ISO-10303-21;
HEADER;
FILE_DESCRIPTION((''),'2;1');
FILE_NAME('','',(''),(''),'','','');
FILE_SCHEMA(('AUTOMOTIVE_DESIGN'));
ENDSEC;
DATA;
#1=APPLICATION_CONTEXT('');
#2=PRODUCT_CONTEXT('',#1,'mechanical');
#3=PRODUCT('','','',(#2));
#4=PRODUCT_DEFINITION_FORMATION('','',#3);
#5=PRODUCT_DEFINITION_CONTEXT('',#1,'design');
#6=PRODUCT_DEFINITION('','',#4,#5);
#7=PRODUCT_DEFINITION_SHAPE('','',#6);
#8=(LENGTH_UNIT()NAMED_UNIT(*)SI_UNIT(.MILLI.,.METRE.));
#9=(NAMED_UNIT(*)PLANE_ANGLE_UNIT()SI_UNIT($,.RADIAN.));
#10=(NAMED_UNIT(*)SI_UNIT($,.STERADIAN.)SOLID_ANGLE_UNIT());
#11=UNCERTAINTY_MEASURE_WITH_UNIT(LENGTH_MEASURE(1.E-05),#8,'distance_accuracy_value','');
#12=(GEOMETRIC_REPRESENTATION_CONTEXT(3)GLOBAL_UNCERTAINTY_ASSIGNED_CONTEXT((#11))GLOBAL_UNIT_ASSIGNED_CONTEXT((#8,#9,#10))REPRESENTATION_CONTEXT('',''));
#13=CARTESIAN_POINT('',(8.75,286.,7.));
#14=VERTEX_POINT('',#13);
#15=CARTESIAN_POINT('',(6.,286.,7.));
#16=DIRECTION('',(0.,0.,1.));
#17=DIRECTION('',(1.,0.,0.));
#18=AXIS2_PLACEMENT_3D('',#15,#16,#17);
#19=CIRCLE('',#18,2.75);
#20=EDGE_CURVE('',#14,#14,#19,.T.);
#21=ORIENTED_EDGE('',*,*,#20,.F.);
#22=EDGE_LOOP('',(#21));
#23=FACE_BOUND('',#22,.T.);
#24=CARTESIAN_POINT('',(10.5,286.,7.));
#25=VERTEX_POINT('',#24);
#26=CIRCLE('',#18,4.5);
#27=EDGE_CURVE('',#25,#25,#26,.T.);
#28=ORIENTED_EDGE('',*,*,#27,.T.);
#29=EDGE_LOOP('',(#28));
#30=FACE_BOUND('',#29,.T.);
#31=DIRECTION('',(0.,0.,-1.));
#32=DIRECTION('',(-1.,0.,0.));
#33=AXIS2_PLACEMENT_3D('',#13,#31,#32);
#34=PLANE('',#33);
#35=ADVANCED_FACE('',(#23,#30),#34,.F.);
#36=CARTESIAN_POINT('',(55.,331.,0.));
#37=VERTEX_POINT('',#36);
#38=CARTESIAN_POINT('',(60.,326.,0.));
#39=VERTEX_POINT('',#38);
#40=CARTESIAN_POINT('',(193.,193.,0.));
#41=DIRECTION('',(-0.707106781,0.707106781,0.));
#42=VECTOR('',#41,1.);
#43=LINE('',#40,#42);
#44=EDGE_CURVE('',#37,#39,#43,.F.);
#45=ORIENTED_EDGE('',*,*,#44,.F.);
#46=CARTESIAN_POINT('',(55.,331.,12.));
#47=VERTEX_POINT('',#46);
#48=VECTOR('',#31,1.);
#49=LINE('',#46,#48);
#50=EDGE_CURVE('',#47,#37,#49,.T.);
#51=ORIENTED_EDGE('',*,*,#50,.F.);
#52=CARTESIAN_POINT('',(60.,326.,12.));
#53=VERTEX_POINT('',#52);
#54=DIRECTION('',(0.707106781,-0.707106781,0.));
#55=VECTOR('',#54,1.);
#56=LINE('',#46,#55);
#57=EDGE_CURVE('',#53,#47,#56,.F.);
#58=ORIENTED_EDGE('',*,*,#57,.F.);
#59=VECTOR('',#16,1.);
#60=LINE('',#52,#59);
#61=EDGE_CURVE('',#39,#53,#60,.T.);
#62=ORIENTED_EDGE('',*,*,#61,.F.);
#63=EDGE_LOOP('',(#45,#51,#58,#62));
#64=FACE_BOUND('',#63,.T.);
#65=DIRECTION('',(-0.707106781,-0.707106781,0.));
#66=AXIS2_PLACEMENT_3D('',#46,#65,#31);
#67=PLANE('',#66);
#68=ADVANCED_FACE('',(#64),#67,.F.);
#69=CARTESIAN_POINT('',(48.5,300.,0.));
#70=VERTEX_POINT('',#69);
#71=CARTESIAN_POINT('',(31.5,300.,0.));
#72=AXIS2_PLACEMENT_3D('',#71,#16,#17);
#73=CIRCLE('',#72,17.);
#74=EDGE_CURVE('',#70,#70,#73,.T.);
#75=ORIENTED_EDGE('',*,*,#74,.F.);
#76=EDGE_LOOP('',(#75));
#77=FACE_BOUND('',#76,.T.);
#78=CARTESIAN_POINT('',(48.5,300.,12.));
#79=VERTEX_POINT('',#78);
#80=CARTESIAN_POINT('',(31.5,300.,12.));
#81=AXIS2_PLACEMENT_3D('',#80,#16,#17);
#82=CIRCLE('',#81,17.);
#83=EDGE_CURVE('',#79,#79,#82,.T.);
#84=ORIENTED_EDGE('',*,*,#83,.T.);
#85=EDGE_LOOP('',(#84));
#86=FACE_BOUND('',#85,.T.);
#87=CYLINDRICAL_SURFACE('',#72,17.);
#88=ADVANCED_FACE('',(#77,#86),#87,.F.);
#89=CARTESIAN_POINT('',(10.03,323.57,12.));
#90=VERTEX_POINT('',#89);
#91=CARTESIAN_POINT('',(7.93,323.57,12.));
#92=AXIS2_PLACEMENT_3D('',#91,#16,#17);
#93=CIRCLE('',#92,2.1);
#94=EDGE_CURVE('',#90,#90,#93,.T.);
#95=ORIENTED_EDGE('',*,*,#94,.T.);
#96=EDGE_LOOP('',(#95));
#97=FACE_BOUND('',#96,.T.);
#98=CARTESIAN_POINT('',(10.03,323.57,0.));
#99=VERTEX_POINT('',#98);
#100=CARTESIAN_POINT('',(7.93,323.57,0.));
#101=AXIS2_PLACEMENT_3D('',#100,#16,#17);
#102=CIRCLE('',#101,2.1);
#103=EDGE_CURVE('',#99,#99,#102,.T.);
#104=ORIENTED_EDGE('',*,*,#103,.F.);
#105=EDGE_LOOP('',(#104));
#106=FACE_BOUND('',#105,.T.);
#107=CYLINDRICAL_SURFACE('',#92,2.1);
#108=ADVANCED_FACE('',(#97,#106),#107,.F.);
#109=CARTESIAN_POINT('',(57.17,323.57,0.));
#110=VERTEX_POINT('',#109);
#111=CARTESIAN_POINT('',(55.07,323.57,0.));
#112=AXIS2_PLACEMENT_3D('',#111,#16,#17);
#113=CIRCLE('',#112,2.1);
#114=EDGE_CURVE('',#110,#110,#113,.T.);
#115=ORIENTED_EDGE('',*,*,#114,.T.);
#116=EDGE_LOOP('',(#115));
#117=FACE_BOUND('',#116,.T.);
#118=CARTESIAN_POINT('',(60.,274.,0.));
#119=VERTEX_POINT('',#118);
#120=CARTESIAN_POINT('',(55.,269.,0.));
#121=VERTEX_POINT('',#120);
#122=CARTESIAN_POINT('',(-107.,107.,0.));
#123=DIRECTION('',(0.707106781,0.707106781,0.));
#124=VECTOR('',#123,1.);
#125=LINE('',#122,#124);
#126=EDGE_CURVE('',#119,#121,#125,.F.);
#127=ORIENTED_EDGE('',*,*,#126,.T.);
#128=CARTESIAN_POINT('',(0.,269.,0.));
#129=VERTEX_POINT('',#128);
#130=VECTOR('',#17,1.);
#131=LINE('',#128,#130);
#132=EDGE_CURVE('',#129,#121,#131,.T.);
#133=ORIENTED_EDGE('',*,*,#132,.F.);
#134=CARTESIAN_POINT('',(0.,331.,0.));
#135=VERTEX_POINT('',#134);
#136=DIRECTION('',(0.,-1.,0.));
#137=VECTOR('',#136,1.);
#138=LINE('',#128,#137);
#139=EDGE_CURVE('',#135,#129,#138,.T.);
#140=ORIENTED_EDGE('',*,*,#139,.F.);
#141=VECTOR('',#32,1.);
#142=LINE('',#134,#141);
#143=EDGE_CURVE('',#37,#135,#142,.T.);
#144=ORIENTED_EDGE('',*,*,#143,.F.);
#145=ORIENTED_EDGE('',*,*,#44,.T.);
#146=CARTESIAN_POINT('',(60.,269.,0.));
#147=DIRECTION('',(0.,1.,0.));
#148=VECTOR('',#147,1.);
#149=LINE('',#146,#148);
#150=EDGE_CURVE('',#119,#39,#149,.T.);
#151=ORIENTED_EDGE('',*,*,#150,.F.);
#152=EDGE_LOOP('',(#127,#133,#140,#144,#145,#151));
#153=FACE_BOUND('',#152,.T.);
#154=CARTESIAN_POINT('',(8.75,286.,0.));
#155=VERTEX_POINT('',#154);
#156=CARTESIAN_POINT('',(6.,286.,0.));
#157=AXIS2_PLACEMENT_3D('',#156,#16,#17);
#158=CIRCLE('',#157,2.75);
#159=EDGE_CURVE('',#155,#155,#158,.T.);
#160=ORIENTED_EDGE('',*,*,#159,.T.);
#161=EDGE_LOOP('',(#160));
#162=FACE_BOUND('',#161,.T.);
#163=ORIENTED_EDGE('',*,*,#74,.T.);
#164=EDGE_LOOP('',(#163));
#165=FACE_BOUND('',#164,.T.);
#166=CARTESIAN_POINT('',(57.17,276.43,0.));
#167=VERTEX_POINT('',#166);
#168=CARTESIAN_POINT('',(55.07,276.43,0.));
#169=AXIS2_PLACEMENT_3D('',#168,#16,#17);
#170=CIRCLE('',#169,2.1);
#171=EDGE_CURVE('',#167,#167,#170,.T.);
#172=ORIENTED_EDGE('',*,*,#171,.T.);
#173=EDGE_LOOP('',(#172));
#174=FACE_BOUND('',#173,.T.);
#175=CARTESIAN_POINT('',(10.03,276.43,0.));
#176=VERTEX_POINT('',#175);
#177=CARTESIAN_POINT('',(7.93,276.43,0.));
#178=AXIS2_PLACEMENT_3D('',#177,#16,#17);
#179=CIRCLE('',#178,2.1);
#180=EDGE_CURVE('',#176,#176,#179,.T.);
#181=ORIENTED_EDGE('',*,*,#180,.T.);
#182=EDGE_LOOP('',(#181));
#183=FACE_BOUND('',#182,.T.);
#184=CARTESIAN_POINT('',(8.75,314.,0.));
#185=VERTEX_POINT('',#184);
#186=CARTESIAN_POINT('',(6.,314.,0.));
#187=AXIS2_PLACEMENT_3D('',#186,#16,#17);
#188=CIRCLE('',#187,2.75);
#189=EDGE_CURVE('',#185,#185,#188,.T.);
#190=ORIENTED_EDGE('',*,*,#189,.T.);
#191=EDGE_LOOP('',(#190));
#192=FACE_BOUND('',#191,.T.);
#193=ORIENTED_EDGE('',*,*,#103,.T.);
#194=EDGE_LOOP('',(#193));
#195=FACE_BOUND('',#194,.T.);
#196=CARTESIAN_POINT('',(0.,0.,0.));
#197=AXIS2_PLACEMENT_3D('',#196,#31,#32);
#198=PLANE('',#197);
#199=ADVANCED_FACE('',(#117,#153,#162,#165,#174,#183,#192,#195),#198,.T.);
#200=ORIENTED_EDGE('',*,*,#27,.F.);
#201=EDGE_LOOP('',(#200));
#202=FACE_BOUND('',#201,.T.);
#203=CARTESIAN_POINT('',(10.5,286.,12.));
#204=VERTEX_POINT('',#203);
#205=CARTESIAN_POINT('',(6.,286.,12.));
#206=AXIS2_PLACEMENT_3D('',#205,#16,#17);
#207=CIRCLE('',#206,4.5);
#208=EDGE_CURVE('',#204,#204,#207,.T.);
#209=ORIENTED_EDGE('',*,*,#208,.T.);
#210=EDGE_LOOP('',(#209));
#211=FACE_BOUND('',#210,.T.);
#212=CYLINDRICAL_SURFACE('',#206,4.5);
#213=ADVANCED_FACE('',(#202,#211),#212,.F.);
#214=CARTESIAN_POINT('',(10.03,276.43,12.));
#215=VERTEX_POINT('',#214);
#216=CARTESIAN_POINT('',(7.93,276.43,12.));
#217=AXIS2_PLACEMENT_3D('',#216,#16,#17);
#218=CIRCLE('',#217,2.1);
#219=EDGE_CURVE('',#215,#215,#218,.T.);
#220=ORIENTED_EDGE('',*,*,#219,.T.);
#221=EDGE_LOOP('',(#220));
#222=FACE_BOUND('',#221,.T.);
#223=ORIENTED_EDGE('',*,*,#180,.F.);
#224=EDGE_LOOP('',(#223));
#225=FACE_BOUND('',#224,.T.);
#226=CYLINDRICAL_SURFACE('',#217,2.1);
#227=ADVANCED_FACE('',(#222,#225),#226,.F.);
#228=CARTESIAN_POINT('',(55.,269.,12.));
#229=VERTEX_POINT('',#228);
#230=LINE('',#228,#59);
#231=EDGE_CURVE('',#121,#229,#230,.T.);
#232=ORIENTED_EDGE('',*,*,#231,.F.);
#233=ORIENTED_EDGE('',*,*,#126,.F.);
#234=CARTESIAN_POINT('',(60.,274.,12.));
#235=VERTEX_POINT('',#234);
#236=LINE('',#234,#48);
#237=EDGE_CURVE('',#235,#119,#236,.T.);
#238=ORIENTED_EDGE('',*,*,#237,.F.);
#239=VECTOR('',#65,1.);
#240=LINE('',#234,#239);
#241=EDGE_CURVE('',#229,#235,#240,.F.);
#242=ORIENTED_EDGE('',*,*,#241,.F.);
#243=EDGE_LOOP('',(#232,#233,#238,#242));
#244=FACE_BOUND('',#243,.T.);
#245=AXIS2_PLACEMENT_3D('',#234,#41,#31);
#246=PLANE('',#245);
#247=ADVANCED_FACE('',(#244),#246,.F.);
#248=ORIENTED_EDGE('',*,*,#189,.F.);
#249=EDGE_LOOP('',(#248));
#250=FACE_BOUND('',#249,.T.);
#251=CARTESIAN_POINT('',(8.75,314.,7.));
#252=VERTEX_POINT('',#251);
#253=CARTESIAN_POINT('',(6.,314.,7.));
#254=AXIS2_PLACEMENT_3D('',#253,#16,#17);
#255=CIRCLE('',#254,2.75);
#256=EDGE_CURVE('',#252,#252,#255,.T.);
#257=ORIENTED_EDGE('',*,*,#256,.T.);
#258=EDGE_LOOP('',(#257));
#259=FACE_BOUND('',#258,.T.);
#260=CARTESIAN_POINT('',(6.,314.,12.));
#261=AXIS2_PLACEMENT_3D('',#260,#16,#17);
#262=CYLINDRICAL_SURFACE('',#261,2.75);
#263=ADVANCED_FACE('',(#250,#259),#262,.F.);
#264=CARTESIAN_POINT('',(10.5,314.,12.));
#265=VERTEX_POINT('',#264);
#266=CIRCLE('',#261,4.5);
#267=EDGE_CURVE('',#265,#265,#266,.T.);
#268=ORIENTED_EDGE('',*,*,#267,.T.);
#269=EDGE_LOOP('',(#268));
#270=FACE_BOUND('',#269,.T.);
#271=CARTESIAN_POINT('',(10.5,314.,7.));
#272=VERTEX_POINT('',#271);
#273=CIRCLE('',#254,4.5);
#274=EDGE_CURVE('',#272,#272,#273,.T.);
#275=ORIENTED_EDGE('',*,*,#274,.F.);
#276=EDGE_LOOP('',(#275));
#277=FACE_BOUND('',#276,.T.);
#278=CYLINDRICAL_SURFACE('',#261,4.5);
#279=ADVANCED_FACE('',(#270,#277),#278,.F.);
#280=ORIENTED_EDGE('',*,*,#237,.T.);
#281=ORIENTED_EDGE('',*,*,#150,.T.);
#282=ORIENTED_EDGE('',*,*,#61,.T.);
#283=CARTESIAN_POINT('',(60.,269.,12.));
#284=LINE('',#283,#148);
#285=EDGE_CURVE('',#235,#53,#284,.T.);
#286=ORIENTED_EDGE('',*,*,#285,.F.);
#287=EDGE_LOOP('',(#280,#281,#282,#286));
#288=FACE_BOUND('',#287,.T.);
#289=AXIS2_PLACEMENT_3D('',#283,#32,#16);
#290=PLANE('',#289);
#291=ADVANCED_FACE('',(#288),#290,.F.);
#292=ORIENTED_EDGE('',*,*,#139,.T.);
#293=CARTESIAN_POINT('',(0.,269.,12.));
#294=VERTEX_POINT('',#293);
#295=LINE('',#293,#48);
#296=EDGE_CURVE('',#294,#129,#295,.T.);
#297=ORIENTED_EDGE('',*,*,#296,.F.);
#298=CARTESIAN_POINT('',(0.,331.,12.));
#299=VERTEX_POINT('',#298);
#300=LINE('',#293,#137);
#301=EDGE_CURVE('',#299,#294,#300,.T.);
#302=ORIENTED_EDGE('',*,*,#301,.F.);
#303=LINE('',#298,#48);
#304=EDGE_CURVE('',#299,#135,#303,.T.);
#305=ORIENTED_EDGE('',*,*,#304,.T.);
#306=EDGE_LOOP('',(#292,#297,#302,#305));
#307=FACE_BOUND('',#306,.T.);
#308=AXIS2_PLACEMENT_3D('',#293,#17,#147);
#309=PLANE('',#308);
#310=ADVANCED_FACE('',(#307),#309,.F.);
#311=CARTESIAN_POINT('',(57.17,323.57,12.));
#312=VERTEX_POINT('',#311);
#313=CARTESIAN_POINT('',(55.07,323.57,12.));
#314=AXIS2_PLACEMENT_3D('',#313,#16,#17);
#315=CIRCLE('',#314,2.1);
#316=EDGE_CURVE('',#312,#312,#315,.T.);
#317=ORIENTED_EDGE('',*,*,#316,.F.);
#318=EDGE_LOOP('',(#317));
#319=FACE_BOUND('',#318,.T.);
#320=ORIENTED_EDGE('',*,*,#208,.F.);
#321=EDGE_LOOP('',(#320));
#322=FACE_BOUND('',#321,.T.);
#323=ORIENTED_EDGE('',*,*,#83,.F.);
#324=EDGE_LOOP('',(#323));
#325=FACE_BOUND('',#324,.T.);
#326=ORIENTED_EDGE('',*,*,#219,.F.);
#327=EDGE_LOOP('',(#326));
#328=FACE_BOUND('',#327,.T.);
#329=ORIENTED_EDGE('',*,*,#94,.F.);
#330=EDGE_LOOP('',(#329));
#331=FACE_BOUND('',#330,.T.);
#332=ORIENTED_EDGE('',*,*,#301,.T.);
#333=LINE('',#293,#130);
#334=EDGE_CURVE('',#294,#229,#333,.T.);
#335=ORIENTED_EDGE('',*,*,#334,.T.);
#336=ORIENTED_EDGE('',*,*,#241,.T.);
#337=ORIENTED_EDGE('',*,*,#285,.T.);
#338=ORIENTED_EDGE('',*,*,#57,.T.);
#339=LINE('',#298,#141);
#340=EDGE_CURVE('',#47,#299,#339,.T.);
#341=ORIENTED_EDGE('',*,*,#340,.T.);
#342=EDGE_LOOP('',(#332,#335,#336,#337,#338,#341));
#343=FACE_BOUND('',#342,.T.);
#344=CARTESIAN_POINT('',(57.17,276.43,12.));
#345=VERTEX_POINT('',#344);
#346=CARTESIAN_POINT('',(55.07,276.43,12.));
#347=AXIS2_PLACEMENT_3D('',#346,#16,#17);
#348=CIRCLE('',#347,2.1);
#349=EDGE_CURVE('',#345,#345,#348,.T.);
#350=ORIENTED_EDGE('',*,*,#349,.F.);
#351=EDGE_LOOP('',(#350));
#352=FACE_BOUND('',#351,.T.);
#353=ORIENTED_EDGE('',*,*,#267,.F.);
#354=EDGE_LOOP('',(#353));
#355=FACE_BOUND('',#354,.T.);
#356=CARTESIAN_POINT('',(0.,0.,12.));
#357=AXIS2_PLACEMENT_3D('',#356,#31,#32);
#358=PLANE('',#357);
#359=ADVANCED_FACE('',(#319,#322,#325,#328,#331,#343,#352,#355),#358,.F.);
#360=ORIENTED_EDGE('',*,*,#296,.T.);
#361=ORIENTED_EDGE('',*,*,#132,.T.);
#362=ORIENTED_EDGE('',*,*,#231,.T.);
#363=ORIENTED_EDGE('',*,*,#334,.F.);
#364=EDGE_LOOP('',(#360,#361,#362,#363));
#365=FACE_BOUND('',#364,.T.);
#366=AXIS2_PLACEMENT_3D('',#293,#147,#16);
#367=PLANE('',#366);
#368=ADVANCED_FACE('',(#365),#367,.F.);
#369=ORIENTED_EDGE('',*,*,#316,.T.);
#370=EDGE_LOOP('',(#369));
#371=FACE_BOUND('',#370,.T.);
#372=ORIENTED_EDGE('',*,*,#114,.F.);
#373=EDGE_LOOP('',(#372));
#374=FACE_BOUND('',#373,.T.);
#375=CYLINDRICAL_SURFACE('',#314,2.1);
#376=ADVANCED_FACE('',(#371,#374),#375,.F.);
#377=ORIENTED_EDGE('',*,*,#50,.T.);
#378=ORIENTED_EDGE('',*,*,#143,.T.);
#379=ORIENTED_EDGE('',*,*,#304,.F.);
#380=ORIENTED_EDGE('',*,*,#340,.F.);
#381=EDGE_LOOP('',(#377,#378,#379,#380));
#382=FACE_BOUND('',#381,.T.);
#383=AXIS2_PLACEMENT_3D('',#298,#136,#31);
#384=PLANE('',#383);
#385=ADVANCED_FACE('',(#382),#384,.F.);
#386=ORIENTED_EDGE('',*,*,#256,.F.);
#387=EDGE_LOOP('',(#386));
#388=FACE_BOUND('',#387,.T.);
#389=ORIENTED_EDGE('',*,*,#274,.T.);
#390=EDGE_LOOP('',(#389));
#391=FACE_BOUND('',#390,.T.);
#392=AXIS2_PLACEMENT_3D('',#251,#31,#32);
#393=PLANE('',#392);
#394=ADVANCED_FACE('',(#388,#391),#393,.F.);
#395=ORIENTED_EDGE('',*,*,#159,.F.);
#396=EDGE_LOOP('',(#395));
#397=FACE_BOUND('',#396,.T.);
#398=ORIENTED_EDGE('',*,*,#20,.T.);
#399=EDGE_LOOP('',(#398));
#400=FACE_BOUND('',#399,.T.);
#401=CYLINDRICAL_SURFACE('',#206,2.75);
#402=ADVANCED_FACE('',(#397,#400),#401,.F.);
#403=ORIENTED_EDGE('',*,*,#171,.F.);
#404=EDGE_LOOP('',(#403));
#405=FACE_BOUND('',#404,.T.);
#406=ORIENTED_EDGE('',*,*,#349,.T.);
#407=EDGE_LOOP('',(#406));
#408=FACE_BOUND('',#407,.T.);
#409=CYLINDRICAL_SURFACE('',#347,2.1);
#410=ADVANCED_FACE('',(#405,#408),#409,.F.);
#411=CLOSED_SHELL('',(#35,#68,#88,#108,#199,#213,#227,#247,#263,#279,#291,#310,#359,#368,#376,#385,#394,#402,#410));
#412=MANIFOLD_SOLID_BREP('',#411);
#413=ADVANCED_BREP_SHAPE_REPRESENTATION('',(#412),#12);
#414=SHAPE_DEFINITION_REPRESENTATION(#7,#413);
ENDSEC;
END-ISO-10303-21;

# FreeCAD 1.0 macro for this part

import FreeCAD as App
import Part
import Sketcher
from FreeCAD import Vector
Q = App.Units.Quantity


def edges_at(feature, points):
    """Names of the edges that pass closest to the given points."""
    edges = feature.Shape.Edges
    near = lambda p: min(range(len(edges)), key=lambda i: edges[i].distToShape(Part.Vertex(*p))[0])
    return sorted({f"Edge{near(p) + 1}" for p in points})

doc = App.newDocument("Part")
body = doc.addObject("PartDesign::Body", "Body")

sketch1 = body.newObject("Sketcher::SketchObject", "Sketch")
sketch1.AttachmentSupport = (doc.getObject("XY_Plane"), [""])
sketch1.MapMode = "FlatFace"
sketch1.addGeometry(Part.LineSegment(Vector(0, 331, 0), Vector(0, 269, 0)), False)
sketch1.addGeometry(Part.LineSegment(Vector(0, 269, 0), Vector(60, 269, 0)), False)
sketch1.addGeometry(Part.LineSegment(Vector(60, 269, 0), Vector(60, 331, 0)), False)
sketch1.addGeometry(Part.LineSegment(Vector(60, 331, 0), Vector(0, 331, 0)), False)
sketch1.addConstraint(Sketcher.Constraint("Coincident", 0, 2, 1, 1))
sketch1.addConstraint(Sketcher.Constraint("Coincident", 1, 2, 2, 1))
sketch1.addConstraint(Sketcher.Constraint("Coincident", 2, 2, 3, 1))
sketch1.addConstraint(Sketcher.Constraint("Coincident", 3, 2, 0, 1))
sketch1.addConstraint(Sketcher.Constraint("Vertical", 0))
sketch1.addConstraint(Sketcher.Constraint("Horizontal", 1))
sketch1.addConstraint(Sketcher.Constraint("Vertical", 2))
sketch1.addConstraint(Sketcher.Constraint("Horizontal", 3))
sketch1.addConstraint(Sketcher.Constraint("PointOnObject", 0, 2, -2))
sketch1.addConstraint(Sketcher.Constraint("DistanceX", 1, 1, 1, 2, Q("60 mm")))
sketch1.addConstraint(Sketcher.Constraint("DistanceY", 0, 2, 0, 1, Q("62 mm")))
sketch1.addConstraint(Sketcher.Constraint("DistanceY", -1, 1, 0, 2, Q("269 mm")))
pad1 = body.newObject("PartDesign::Pad", "Pad")
pad1.Profile = sketch1
pad1.Length = 12

sketch2 = body.newObject("Sketcher::SketchObject", "Sketch001")
sketch2.AttachmentSupport = (doc.getObject("XY_Plane"), [""])
sketch2.MapMode = "FlatFace"
sketch2.AttachmentOffset = App.Placement(Vector(0, 0, 12), App.Rotation())
sketch2.addGeometry(Part.Circle(Vector(32, 300, 0), Vector(0, 0, 1), 17), False)
sketch2.addConstraint(Sketcher.Constraint("Diameter", 0, Q("34 mm")))
sketch2.addConstraint(Sketcher.Constraint("DistanceY", -1, 1, 0, 3, Q("300 mm")))
sketch2.addConstraint(Sketcher.Constraint("DistanceX", -1, 1, 0, 3, Q("31.5 mm")))
pocket1 = body.newObject("PartDesign::Pocket", "Pocket")
pocket1.Profile = sketch2
pocket1.Type = "ThroughAll"

sketch3 = body.newObject("Sketcher::SketchObject", "Sketch002")
sketch3.AttachmentSupport = (doc.getObject("XY_Plane"), [""])
sketch3.MapMode = "FlatFace"
sketch3.AttachmentOffset = App.Placement(Vector(0, 0, 12), App.Rotation())
sketch3.addGeometry(Part.Circle(Vector(6, 314, 0), Vector(0, 0, 1), 2.8), False)
sketch3.addGeometry(Part.Circle(Vector(6, 286, 0), Vector(0, 0, 1), 2.8), False)
sketch3.addConstraint(Sketcher.Constraint("Equal", 0, 1))
sketch3.addConstraint(Sketcher.Constraint("Vertical", 0, 3, 1, 3))
sketch3.addConstraint(Sketcher.Constraint("Diameter", 0, Q("5.5 mm")))
sketch3.addConstraint(Sketcher.Constraint("DistanceX", -1, 1, 0, 3, Q("6 mm")))
sketch3.addConstraint(Sketcher.Constraint("DistanceY", -1, 1, 0, 3, Q("314 mm")))
sketch3.addConstraint(Sketcher.Constraint("DistanceY", -1, 1, 1, 3, Q("286 mm")))
doc.recompute()
hole = body.newObject("PartDesign::Hole", "Hole")
hole.Profile = sketch3
hole.ThreadType = "None"
hole.Diameter = 5.5
hole.DepthType = "ThroughAll"
hole.HoleCutType = "Counterbore"
hole.HoleCutDiameter = 9
hole.HoleCutDepth = 5

sketch4 = body.newObject("Sketcher::SketchObject", "Sketch003")
sketch4.AttachmentSupport = (doc.getObject("XY_Plane"), [""])
sketch4.MapMode = "FlatFace"
sketch4.AttachmentOffset = App.Placement(Vector(0, 0, 12), App.Rotation())
sketch4.addGeometry(Part.Circle(Vector(55.1, 323.6, 0), Vector(0, 0, 1), 2.1), False)
sketch4.addGeometry(Part.Circle(Vector(55.1, 276.4, 0), Vector(0, 0, 1), 2.1), False)
sketch4.addGeometry(Part.Circle(Vector(7.9, 323.6, 0), Vector(0, 0, 1), 2.1), False)
sketch4.addGeometry(Part.Circle(Vector(7.9, 276.4, 0), Vector(0, 0, 1), 2.1), False)
sketch4.addConstraint(Sketcher.Constraint("Equal", 0, 1))
sketch4.addConstraint(Sketcher.Constraint("Equal", 1, 2))
sketch4.addConstraint(Sketcher.Constraint("Equal", 2, 3))
sketch4.addConstraint(Sketcher.Constraint("Horizontal", 0, 3, 2, 3))
sketch4.addConstraint(Sketcher.Constraint("Horizontal", 1, 3, 3, 3))
sketch4.addConstraint(Sketcher.Constraint("Vertical", 0, 3, 1, 3))
sketch4.addConstraint(Sketcher.Constraint("Vertical", 2, 3, 3, 3))
sketch4.addConstraint(Sketcher.Constraint("Diameter", 0, Q("4.2 mm")))
sketch4.addConstraint(Sketcher.Constraint("DistanceX", -1, 1, 0, 3, Q("55.07 mm")))
sketch4.addConstraint(Sketcher.Constraint("DistanceY", -1, 1, 0, 3, Q("323.57 mm")))
sketch4.addConstraint(Sketcher.Constraint("DistanceY", -1, 1, 1, 3, Q("276.43 mm")))
sketch4.addConstraint(Sketcher.Constraint("DistanceX", -1, 1, 2, 3, Q("7.93 mm")))
doc.recompute()
hole2 = body.newObject("PartDesign::Hole", "Hole001")
hole2.Profile = sketch4
hole2.ThreadType = "None"
hole2.Diameter = 4.2
hole2.DepthType = "ThroughAll"
doc.recompute()

chamfer = body.newObject("PartDesign::Chamfer", "Chamfer")
chamfer.Base = (hole2, edges_at(hole2, [(60, 331, 6), (60, 269, 6)]))
chamfer.Size = 5

doc.recompute()
